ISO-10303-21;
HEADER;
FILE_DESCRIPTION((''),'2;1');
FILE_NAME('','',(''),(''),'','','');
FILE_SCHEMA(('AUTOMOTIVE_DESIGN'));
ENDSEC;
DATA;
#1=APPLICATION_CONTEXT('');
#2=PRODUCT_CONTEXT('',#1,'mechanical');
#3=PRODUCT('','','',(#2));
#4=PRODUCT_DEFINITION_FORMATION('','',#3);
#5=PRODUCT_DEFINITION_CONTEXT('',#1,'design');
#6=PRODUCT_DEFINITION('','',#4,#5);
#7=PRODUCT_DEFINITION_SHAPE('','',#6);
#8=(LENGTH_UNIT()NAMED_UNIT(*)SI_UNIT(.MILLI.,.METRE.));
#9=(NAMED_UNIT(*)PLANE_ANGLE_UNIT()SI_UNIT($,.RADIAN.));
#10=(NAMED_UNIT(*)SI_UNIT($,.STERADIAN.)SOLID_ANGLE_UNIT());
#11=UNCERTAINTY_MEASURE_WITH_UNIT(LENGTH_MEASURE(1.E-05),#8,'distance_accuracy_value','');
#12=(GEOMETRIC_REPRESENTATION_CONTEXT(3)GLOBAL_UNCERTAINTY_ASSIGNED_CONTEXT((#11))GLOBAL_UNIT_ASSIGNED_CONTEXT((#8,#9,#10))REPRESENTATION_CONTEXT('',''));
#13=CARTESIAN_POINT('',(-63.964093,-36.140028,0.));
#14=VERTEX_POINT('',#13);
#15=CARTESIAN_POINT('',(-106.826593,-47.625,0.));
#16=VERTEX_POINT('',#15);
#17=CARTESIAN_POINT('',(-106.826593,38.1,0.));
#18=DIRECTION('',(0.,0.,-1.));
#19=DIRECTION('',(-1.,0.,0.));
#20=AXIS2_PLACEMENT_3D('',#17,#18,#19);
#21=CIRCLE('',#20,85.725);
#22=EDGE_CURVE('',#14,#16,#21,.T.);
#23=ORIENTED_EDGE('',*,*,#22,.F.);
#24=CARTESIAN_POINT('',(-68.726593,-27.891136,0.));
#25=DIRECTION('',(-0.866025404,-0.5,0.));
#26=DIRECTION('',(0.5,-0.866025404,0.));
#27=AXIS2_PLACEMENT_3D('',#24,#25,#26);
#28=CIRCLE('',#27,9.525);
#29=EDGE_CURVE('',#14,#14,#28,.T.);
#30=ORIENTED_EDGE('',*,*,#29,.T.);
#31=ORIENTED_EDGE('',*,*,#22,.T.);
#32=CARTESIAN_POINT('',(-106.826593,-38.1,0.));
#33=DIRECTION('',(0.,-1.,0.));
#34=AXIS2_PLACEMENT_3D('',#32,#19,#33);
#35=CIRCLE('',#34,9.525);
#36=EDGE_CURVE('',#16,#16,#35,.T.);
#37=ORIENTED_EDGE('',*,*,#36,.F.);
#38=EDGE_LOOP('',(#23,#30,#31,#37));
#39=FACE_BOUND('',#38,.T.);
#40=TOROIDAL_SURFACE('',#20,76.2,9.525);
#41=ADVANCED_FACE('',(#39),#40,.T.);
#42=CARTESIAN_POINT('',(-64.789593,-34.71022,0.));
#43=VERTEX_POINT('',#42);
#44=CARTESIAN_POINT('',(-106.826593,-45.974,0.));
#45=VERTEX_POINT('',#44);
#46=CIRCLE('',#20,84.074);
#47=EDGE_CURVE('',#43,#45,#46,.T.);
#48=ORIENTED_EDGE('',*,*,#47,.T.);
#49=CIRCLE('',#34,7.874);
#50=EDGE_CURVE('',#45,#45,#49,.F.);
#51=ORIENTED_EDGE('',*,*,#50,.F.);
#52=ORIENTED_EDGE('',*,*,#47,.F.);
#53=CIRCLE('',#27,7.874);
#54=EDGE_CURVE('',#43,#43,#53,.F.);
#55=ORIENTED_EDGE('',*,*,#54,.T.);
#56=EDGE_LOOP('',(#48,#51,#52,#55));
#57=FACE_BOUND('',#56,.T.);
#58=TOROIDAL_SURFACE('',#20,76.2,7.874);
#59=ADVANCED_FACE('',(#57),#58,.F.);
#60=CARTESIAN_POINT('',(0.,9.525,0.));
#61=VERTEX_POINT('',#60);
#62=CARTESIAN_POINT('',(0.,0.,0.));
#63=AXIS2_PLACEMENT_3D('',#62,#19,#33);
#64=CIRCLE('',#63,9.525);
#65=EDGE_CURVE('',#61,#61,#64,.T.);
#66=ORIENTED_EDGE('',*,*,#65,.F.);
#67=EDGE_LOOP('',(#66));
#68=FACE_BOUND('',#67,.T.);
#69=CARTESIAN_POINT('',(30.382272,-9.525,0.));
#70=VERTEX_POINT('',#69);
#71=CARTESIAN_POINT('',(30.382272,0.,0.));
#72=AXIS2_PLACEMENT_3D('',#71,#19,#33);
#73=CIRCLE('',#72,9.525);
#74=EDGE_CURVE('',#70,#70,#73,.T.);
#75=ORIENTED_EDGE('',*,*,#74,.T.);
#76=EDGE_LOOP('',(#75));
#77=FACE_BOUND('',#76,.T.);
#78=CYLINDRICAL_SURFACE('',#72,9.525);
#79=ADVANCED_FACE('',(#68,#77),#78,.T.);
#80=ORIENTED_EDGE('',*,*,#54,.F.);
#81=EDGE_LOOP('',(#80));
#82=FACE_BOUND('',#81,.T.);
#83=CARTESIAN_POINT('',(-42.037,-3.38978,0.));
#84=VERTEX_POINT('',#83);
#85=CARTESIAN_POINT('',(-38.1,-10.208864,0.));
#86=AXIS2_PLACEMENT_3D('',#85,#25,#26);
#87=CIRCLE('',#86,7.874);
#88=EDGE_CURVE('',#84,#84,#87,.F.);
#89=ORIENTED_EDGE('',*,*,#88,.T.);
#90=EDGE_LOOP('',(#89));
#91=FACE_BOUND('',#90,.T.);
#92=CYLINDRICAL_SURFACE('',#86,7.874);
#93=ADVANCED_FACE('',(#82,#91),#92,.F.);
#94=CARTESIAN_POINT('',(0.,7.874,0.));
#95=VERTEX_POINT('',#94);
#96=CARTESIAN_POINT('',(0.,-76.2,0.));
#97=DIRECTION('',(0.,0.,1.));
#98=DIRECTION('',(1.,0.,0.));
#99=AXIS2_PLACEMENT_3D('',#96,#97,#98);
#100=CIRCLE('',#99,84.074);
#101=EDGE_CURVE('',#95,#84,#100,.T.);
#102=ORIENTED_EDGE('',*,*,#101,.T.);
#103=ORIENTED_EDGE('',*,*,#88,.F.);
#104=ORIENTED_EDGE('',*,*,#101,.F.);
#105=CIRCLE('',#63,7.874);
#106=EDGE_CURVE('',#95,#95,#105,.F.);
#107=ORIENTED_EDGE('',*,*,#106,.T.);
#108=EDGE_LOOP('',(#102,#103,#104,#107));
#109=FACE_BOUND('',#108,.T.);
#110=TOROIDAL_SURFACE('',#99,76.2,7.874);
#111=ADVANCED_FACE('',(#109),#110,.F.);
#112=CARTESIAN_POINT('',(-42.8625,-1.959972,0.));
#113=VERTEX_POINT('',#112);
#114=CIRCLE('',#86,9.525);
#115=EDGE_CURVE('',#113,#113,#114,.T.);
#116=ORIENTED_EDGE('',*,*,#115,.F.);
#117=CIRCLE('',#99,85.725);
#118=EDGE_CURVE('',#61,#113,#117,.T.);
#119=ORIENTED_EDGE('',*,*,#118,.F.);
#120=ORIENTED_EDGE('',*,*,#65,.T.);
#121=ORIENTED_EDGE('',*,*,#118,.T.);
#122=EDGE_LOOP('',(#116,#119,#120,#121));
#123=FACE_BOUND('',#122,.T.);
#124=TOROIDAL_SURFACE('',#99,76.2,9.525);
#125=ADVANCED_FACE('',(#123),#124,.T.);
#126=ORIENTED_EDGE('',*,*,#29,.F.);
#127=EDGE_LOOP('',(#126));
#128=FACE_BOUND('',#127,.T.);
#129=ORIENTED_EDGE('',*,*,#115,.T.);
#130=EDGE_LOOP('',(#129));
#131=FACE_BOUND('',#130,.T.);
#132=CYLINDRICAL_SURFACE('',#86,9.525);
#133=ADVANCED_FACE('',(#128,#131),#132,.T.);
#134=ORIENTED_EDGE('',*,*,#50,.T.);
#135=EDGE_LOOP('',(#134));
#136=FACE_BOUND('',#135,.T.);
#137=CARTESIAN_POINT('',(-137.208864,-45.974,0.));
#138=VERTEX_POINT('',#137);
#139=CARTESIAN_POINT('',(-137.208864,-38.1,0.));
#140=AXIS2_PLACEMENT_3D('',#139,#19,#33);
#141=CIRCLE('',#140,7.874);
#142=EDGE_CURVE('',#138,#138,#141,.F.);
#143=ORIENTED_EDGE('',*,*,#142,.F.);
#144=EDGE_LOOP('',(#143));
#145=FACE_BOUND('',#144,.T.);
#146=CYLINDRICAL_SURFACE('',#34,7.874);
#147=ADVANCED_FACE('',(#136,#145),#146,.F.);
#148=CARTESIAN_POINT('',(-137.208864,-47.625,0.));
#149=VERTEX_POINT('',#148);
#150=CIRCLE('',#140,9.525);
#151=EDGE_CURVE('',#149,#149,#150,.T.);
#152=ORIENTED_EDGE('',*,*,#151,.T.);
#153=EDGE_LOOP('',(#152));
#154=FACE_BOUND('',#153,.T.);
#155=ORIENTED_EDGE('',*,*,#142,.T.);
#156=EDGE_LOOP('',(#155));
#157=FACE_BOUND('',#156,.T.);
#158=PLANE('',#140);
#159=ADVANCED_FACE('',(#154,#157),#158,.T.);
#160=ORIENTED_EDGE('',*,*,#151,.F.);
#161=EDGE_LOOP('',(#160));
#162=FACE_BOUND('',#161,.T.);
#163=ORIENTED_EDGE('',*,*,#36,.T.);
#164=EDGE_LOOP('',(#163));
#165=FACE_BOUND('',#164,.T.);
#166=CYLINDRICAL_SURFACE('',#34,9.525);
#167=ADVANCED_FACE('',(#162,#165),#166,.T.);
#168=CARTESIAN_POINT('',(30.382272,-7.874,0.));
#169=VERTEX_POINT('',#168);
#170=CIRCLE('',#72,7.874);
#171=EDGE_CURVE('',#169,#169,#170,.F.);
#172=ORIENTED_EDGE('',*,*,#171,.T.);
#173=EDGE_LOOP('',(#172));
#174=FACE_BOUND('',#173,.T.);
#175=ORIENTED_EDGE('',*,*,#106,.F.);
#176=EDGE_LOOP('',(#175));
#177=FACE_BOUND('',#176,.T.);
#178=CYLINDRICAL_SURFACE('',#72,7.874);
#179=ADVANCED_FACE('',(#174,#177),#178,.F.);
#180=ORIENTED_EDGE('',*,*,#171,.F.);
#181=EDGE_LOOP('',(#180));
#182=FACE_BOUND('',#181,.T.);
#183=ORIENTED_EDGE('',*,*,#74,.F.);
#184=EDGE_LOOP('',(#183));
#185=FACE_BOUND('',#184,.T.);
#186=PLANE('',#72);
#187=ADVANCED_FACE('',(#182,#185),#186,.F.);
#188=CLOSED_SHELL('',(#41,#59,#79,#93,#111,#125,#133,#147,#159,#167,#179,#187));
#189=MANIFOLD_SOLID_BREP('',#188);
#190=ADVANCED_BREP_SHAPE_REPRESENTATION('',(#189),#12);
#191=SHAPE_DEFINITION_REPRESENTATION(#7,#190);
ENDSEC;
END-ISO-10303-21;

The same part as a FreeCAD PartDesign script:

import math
import FreeCAD as App
import Part
import Sketcher

V = App.Vector
Q = App.Units.Quantity

doc = App.newDocument("Part")
body = doc.addObject("PartDesign::Body", "Body")

sketch1 = body.newObject("Sketcher::SketchObject", "Sketch")
sketch1.AttachmentSupport = (doc.getObject("YZ_Plane"), [""])
sketch1.MapMode = "FlatFace"
sketch1.AttachmentOffset = App.Placement(V(0, 0, 30.382272), App.Rotation())
sketch1.addGeometry(Part.Circle(V(0, 0, 0), V(0, 0, 1), 10), False)
sketch1.addGeometry(Part.Circle(V(0, 0, 0), V(0, 0, 1), 8), False)
sketch1.addConstraint(Sketcher.Constraint("Coincident", 0, 3, -1, 1))
sketch1.addConstraint(Sketcher.Constraint("Coincident", 1, 3, -1, 1))
sketch1.addConstraint(Sketcher.Constraint("Diameter", 0, Q("0.75 in")))
sketch1.addConstraint(Sketcher.Constraint("Diameter", 1, Q("0.62 in")))

sketch2 = body.newObject("Sketcher::SketchObject", "Sketch001")
sketch2.AttachmentSupport = (doc.getObject("XY_Plane"), [""])
sketch2.MapMode = "FlatFace"
sketch2.addGeometry(Part.LineSegment(V(30, 0, 0), V(0, 0, 0)), False)
sketch2.addGeometry(Part.ArcOfCircle(Part.Circle(V(0, -76, 0), V(0, 0, 1), 76), math.radians(90), math.radians(120)), False)
sketch2.addGeometry(Part.LineSegment(V(-38, -10, 0), V(-69, -28, 0)), False)
sketch2.addGeometry(Part.ArcOfCircle(Part.Circle(V(-107, 38, 0), V(0, 0, 1), 76), math.radians(-90), math.radians(-60)), False)
sketch2.addGeometry(Part.LineSegment(V(-107, -38, 0), V(-137, -38, 0)), False)
sketch2.addConstraint(Sketcher.Constraint("Tangent", 0, 2, 1, 1))
sketch2.addConstraint(Sketcher.Constraint("Tangent", 1, 2, 2, 1))
sketch2.addConstraint(Sketcher.Constraint("Tangent", 2, 2, 3, 2))
sketch2.addConstraint(Sketcher.Constraint("Tangent", 3, 1, 4, 1))
sketch2.addConstraint(Sketcher.Constraint("Horizontal", 0))
sketch2.addConstraint(Sketcher.Constraint("Horizontal", 4))
sketch2.addConstraint(Sketcher.Constraint("Coincident", 0, 2, -1, 1))
sketch2.addConstraint(Sketcher.Constraint("Equal", 1, 3))
sketch2.addConstraint(Sketcher.Constraint("Equal", 0, 4))
sketch2.addConstraint(Sketcher.Constraint("Radius", 1, Q("3 in")))
sketch2.addConstraint(Sketcher.Constraint("Angle", 2, Q("-150 deg")))
sketch2.addConstraint(Sketcher.Constraint("DistanceY", -1, 1, 3, 3, Q("1.5 in")))
sketch2.addConstraint(Sketcher.Constraint("DistanceX", 0, 2, 0, 1, 30.382272))
doc.recompute()

additivepipe = body.newObject("PartDesign::AdditivePipe", "AdditivePipe")
additivepipe.Profile = sketch1
additivepipe.Spine = (sketch2, ["Edge1", "Edge2", "Edge3", "Edge4", "Edge5"])

doc.recompute()
